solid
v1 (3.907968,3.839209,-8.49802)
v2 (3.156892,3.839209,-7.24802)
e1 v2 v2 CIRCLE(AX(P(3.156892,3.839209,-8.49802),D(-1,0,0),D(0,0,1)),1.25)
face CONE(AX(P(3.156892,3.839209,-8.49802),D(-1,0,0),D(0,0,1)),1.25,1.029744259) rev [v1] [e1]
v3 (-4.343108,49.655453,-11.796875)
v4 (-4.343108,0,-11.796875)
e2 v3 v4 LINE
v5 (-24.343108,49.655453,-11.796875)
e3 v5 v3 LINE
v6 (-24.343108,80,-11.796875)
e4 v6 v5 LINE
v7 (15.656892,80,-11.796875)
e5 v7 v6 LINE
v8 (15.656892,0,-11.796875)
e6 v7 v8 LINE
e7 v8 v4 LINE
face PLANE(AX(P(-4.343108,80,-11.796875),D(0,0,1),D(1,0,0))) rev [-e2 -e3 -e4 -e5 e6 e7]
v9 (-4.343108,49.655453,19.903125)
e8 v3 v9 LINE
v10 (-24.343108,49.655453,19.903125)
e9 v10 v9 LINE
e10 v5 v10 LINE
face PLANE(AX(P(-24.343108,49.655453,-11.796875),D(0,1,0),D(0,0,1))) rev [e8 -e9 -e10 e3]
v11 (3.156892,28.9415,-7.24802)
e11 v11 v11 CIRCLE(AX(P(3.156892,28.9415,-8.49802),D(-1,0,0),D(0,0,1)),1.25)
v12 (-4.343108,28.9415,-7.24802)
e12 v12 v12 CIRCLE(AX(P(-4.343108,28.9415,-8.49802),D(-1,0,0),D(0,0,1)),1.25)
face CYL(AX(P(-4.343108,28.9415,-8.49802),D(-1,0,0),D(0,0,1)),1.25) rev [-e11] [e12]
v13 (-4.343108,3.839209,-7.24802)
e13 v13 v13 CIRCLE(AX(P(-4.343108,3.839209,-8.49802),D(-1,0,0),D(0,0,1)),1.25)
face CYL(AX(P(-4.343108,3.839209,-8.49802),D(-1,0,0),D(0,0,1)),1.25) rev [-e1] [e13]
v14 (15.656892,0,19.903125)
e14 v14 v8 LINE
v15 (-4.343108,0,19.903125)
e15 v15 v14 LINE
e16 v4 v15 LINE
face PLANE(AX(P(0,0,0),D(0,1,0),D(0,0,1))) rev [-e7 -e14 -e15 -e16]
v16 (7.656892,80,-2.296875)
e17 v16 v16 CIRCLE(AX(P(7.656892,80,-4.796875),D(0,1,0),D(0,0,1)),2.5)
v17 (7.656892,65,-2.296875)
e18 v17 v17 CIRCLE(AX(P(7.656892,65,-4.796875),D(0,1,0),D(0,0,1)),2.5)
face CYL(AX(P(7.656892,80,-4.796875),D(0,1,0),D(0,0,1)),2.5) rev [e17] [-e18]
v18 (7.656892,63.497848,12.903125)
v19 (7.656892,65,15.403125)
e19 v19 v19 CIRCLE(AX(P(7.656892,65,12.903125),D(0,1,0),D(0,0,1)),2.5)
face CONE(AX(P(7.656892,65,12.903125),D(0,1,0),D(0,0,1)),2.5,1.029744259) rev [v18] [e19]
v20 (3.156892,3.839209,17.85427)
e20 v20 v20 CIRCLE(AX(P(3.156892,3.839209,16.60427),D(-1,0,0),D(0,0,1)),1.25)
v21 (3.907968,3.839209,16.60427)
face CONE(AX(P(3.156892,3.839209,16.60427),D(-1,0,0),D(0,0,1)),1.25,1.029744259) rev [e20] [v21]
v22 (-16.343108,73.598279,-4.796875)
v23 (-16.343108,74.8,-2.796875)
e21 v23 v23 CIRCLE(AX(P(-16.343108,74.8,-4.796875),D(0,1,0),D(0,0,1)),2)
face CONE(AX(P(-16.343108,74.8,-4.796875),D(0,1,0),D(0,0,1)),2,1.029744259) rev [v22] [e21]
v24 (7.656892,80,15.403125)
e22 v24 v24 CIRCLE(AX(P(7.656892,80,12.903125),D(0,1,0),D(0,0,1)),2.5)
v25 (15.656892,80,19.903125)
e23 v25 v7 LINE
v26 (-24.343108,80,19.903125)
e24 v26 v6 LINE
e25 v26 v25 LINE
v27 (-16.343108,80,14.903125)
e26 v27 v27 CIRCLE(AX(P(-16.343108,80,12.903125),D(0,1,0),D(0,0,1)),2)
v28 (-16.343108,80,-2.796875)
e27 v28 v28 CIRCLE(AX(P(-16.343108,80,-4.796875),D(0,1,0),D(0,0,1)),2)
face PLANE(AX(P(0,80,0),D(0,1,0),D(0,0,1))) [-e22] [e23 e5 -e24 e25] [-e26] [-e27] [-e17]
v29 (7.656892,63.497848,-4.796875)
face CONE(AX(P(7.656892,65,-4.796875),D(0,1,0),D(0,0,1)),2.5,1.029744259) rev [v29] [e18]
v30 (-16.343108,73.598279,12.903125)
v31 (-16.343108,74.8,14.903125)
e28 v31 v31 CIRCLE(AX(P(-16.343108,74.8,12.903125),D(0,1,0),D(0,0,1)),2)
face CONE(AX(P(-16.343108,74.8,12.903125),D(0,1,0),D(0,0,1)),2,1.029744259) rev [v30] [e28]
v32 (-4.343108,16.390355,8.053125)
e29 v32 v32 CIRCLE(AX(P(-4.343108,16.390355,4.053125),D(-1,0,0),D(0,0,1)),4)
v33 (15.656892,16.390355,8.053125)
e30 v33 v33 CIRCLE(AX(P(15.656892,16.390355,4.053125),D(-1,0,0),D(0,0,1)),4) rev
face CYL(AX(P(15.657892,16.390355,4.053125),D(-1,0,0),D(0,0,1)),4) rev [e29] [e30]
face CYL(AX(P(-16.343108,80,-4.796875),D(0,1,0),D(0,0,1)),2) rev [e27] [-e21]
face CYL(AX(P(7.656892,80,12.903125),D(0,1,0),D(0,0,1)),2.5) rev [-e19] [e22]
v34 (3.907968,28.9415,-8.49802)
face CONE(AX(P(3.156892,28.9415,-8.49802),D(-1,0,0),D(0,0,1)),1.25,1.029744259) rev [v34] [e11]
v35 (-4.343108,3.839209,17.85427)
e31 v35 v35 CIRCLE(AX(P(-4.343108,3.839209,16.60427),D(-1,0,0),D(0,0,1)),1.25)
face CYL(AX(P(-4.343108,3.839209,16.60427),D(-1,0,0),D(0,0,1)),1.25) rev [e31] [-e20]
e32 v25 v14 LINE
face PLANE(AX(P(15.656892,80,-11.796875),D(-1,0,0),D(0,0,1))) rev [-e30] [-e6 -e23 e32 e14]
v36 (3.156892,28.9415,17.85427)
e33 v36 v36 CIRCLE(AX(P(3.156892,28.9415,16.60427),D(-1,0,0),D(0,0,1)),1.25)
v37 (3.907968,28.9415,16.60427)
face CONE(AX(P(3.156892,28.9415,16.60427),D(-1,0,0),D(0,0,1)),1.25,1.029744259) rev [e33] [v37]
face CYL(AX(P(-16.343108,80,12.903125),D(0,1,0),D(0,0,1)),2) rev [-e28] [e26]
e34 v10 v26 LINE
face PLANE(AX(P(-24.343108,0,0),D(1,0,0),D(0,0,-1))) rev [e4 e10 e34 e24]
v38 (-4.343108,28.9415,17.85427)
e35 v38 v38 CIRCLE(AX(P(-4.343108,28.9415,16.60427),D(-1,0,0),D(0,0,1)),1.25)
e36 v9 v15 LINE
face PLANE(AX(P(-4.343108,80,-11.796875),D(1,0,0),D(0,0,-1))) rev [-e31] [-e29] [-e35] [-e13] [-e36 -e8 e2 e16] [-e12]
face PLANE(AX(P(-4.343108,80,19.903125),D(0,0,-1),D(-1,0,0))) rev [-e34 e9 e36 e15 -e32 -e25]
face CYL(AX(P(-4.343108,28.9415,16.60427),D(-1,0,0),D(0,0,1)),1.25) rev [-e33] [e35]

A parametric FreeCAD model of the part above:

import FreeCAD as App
import Part
import Sketcher


def add_polygon(sketch, points):
    """Adds a closed chain of lines whose ends are joined by coincident constraints."""
    first, n = sketch.GeometryCount, len(points)
    for a, b in zip(points, points[1:] + points[:1]):
        sketch.addGeometry(Part.LineSegment(App.Vector(*a, 0), App.Vector(*b, 0)), False)
    for i in range(n):
        sketch.addConstraint(Sketcher.Constraint("Coincident", first + i, 2, first + (i + 1) % n, 1))

doc = App.newDocument("Part")
body = doc.addObject("PartDesign::Body", "Body")

# Sketch on XZ plane
sketch1 = body.newObject("Sketcher::SketchObject", "Sketch")
sketch1.AttachmentSupport = (doc.getObject("XZ_Plane"), [""])
sketch1.MapMode = "FlatFace"
add_polygon(sketch1, [(-4, -12), (-4, 20), (16, 20), (16, -12)])  # lines 0-3
sketch1.addConstraint(Sketcher.Constraint("Vertical", 0))
sketch1.addConstraint(Sketcher.Constraint("Horizontal", 1))
sketch1.addConstraint(Sketcher.Constraint("Vertical", 2))
sketch1.addConstraint(Sketcher.Constraint("Horizontal", 3))
sketch1.addConstraint(Sketcher.Constraint("DistanceX", 1, 1, 1, 2, 20.0))
sketch1.addConstraint(Sketcher.Constraint("DistanceY", 0, 1, 0, 2, 31.7))
sketch1.addConstraint(Sketcher.Constraint("DistanceX", 0, 2, -1, 1, 4.343108))
sketch1.addConstraint(Sketcher.Constraint("DistanceY", -1, 1, 0, 2, 19.903125))
pad1 = body.newObject("PartDesign::Pad", "Pad")
pad1.Profile = sketch1
pad1.Length = 80
pad1.Reversed = True

# Sketch on YZ plane
sketch2 = body.newObject("Sketcher::SketchObject", "Sketch001")
sketch2.AttachmentSupport = (doc.getObject("YZ_Plane"), [""])
sketch2.MapMode = "FlatFace"
sketch2.AttachmentOffset = App.Placement(App.Vector(0, 0, -4.343108), App.Rotation())
sketch2.addGeometry(Part.Circle(App.Vector(16.4, 4.1, 0), App.Vector(0, 0, 1), 4), False)
sketch2.addConstraint(Sketcher.Constraint("Diameter", 0, 8.0))
sketch2.addConstraint(Sketcher.Constraint("DistanceX", -1, 1, 0, 3, 16.390355))
sketch2.addConstraint(Sketcher.Constraint("DistanceY", -1, 1, 0, 3, 4.053125))
pocket1 = body.newObject("PartDesign::Pocket", "Pocket")
pocket1.Profile = sketch2
pocket1.Type = "UpToFirst"
pocket1.Reversed = True

# Sketch on YZ plane
sketch3 = body.newObject("Sketcher::SketchObject", "Sketch002")
sketch3.AttachmentSupport = (doc.getObject("YZ_Plane"), [""])
sketch3.MapMode = "FlatFace"
sketch3.AttachmentOffset = App.Placement(App.Vector(0, 0, -4.343108), App.Rotation())
sketch3.addGeometry(Part.Circle(App.Vector(28.9, 16.6, 0), App.Vector(0, 0, 1), 1.2), False)
sketch3.addGeometry(Part.Circle(App.Vector(28.9, -8.5, 0), App.Vector(0, 0, 1), 1.2), False)
sketch3.addGeometry(Part.Circle(App.Vector(3.8, -8.5, 0), App.Vector(0, 0, 1), 1.2), False)
sketch3.addGeometry(Part.Circle(App.Vector(3.8, 16.6, 0), App.Vector(0, 0, 1), 1.2), False)
sketch3.addConstraint(Sketcher.Constraint("Equal", 0, 1))
sketch3.addConstraint(Sketcher.Constraint("Equal", 1, 2))
sketch3.addConstraint(Sketcher.Constraint("Equal", 2, 3))
sketch3.addConstraint(Sketcher.Constraint("Horizontal", 1, 3, 2, 3))
sketch3.addConstraint(Sketcher.Constraint("Horizontal", 0, 3, 3, 3))
sketch3.addConstraint(Sketcher.Constraint("Vertical", 0, 3, 1, 3))
sketch3.addConstraint(Sketcher.Constraint("Vertical", 2, 3, 3, 3))
sketch3.addConstraint(Sketcher.Constraint("Diameter", 0, 2.5))
sketch3.addConstraint(Sketcher.Constraint("DistanceX", -1, 1, 0, 3, 28.9415))
sketch3.addConstraint(Sketcher.Constraint("DistanceY", -1, 1, 0, 3, 16.60427))
sketch3.addConstraint(Sketcher.Constraint("DistanceY", 1, 3, -1, 1, 8.49802))
sketch3.addConstraint(Sketcher.Constraint("DistanceX", -1, 1, 2, 3, 3.839209))
doc.recompute()
hole = body.newObject("PartDesign::Hole", "Hole")
hole.Profile = sketch3
hole.ThreadType = "None"
hole.Diameter = 2.5
hole.DepthType = "Dimension"
hole.Depth = 7.5
hole.DrillPoint = "Angled"
hole.DrillPointAngle = 118
hole.Reversed = True

# Sketch on YZ plane
sketch4 = body.newObject("Sketcher::SketchObject", "Sketch003")
sketch4.AttachmentSupport = (doc.getObject("YZ_Plane"), [""])
sketch4.MapMode = "FlatFace"
sketch4.AttachmentOffset = App.Placement(App.Vector(0, 0, -4.343108), App.Rotation())
add_polygon(sketch4, [(80, -12), (50, -12), (50, 20), (80, 20)])  # lines 0-3
sketch4.addConstraint(Sketcher.Constraint("Horizontal", 0))
sketch4.addConstraint(Sketcher.Constraint("Vertical", 1))
sketch4.addConstraint(Sketcher.Constraint("Horizontal", 2))
sketch4.addConstraint(Sketcher.Constraint("Vertical", 3))
sketch4.addConstraint(Sketcher.Constraint("DistanceY", 1, 1, 1, 2, 31.7))
sketch4.addConstraint(Sketcher.Constraint("DistanceX", -1, 1, 2, 2, 80.0))
sketch4.addConstraint(Sketcher.Constraint("DistanceX", 0, 2, 0, 1, 30.344547))
sketch4.addConstraint(Sketcher.Constraint("DistanceY", 0, 2, -1, 1, 11.796875))
pad2 = body.newObject("PartDesign::Pad", "Pad001")
pad2.Profile = sketch4
pad2.Length = 20
pad2.Reversed = True

# Sketch on XZ plane
sketch5 = body.newObject("Sketcher::SketchObject", "Sketch004")
sketch5.AttachmentSupport = (doc.getObject("XZ_Plane"), [""])
sketch5.MapMode = "FlatFace"
sketch5.AttachmentOffset = App.Placement(App.Vector(0, 0, -80), App.Rotation())
sketch5.addGeometry(Part.Circle(App.Vector(-16.3, -4.8, 0), App.Vector(0, 0, 1), 2), False)
sketch5.addGeometry(Part.Circle(App.Vector(-16.3, 12.9, 0), App.Vector(0, 0, 1), 2), False)
sketch5.addConstraint(Sketcher.Constraint("Equal", 0, 1))
sketch5.addConstraint(Sketcher.Constraint("Vertical", 0, 3, 1, 3))
sketch5.addConstraint(Sketcher.Constraint("Diameter", 0, 4.0))
sketch5.addConstraint(Sketcher.Constraint("DistanceY", 0, 3, 1, 3, 17.7))
sketch5.addConstraint(Sketcher.Constraint("DistanceX", 0, 3, -1, 1, 16.343108))
sketch5.addConstraint(Sketcher.Constraint("DistanceY", 0, 3, -1, 1, 4.796875))
doc.recompute()
hole2 = body.newObject("PartDesign::Hole", "Hole001")
hole2.Profile = sketch5
hole2.ThreadType = "None"
hole2.Diameter = 4
hole2.DepthType = "Dimension"
hole2.Depth = 5.2
hole2.DrillPoint = "Angled"
hole2.DrillPointAngle = 118
hole2.Reversed = True

# Sketch on XZ plane
sketch6 = body.newObject("Sketcher::SketchObject", "Sketch005")
sketch6.AttachmentSupport = (doc.getObject("XZ_Plane"), [""])
sketch6.MapMode = "FlatFace"
sketch6.AttachmentOffset = App.Placement(App.Vector(0, 0, -80), App.Rotation())
sketch6.addGeometry(Part.Circle(App.Vector(7.7, -4.8, 0), App.Vector(0, 0, 1), 2.5), False)
sketch6.addGeometry(Part.Circle(App.Vector(7.7, 12.9, 0), App.Vector(0, 0, 1), 2.5), False)
sketch6.addConstraint(Sketcher.Constraint("Equal", 0, 1))
sketch6.addConstraint(Sketcher.Constraint("Vertical", 0, 3, 1, 3))
sketch6.addConstraint(Sketcher.Constraint("Diameter", 0, 5.0))
sketch6.addConstraint(Sketcher.Constraint("DistanceY", 0, 3, 1, 3, 17.7))
sketch6.addConstraint(Sketcher.Constraint("DistanceX", -1, 1, 0, 3, 7.656892))
sketch6.addConstraint(Sketcher.Constraint("DistanceY", 0, 3, -1, 1, 4.796875))
doc.recompute()
hole3 = body.newObject("PartDesign::Hole", "Hole002")
hole3.Profile = sketch6
hole3.ThreadType = "None"
hole3.Diameter = 5
hole3.DepthType = "Dimension"
hole3.Depth = 15
hole3.DrillPoint = "Angled"
hole3.DrillPointAngle = 118
hole3.Reversed = True

doc.recompute()
